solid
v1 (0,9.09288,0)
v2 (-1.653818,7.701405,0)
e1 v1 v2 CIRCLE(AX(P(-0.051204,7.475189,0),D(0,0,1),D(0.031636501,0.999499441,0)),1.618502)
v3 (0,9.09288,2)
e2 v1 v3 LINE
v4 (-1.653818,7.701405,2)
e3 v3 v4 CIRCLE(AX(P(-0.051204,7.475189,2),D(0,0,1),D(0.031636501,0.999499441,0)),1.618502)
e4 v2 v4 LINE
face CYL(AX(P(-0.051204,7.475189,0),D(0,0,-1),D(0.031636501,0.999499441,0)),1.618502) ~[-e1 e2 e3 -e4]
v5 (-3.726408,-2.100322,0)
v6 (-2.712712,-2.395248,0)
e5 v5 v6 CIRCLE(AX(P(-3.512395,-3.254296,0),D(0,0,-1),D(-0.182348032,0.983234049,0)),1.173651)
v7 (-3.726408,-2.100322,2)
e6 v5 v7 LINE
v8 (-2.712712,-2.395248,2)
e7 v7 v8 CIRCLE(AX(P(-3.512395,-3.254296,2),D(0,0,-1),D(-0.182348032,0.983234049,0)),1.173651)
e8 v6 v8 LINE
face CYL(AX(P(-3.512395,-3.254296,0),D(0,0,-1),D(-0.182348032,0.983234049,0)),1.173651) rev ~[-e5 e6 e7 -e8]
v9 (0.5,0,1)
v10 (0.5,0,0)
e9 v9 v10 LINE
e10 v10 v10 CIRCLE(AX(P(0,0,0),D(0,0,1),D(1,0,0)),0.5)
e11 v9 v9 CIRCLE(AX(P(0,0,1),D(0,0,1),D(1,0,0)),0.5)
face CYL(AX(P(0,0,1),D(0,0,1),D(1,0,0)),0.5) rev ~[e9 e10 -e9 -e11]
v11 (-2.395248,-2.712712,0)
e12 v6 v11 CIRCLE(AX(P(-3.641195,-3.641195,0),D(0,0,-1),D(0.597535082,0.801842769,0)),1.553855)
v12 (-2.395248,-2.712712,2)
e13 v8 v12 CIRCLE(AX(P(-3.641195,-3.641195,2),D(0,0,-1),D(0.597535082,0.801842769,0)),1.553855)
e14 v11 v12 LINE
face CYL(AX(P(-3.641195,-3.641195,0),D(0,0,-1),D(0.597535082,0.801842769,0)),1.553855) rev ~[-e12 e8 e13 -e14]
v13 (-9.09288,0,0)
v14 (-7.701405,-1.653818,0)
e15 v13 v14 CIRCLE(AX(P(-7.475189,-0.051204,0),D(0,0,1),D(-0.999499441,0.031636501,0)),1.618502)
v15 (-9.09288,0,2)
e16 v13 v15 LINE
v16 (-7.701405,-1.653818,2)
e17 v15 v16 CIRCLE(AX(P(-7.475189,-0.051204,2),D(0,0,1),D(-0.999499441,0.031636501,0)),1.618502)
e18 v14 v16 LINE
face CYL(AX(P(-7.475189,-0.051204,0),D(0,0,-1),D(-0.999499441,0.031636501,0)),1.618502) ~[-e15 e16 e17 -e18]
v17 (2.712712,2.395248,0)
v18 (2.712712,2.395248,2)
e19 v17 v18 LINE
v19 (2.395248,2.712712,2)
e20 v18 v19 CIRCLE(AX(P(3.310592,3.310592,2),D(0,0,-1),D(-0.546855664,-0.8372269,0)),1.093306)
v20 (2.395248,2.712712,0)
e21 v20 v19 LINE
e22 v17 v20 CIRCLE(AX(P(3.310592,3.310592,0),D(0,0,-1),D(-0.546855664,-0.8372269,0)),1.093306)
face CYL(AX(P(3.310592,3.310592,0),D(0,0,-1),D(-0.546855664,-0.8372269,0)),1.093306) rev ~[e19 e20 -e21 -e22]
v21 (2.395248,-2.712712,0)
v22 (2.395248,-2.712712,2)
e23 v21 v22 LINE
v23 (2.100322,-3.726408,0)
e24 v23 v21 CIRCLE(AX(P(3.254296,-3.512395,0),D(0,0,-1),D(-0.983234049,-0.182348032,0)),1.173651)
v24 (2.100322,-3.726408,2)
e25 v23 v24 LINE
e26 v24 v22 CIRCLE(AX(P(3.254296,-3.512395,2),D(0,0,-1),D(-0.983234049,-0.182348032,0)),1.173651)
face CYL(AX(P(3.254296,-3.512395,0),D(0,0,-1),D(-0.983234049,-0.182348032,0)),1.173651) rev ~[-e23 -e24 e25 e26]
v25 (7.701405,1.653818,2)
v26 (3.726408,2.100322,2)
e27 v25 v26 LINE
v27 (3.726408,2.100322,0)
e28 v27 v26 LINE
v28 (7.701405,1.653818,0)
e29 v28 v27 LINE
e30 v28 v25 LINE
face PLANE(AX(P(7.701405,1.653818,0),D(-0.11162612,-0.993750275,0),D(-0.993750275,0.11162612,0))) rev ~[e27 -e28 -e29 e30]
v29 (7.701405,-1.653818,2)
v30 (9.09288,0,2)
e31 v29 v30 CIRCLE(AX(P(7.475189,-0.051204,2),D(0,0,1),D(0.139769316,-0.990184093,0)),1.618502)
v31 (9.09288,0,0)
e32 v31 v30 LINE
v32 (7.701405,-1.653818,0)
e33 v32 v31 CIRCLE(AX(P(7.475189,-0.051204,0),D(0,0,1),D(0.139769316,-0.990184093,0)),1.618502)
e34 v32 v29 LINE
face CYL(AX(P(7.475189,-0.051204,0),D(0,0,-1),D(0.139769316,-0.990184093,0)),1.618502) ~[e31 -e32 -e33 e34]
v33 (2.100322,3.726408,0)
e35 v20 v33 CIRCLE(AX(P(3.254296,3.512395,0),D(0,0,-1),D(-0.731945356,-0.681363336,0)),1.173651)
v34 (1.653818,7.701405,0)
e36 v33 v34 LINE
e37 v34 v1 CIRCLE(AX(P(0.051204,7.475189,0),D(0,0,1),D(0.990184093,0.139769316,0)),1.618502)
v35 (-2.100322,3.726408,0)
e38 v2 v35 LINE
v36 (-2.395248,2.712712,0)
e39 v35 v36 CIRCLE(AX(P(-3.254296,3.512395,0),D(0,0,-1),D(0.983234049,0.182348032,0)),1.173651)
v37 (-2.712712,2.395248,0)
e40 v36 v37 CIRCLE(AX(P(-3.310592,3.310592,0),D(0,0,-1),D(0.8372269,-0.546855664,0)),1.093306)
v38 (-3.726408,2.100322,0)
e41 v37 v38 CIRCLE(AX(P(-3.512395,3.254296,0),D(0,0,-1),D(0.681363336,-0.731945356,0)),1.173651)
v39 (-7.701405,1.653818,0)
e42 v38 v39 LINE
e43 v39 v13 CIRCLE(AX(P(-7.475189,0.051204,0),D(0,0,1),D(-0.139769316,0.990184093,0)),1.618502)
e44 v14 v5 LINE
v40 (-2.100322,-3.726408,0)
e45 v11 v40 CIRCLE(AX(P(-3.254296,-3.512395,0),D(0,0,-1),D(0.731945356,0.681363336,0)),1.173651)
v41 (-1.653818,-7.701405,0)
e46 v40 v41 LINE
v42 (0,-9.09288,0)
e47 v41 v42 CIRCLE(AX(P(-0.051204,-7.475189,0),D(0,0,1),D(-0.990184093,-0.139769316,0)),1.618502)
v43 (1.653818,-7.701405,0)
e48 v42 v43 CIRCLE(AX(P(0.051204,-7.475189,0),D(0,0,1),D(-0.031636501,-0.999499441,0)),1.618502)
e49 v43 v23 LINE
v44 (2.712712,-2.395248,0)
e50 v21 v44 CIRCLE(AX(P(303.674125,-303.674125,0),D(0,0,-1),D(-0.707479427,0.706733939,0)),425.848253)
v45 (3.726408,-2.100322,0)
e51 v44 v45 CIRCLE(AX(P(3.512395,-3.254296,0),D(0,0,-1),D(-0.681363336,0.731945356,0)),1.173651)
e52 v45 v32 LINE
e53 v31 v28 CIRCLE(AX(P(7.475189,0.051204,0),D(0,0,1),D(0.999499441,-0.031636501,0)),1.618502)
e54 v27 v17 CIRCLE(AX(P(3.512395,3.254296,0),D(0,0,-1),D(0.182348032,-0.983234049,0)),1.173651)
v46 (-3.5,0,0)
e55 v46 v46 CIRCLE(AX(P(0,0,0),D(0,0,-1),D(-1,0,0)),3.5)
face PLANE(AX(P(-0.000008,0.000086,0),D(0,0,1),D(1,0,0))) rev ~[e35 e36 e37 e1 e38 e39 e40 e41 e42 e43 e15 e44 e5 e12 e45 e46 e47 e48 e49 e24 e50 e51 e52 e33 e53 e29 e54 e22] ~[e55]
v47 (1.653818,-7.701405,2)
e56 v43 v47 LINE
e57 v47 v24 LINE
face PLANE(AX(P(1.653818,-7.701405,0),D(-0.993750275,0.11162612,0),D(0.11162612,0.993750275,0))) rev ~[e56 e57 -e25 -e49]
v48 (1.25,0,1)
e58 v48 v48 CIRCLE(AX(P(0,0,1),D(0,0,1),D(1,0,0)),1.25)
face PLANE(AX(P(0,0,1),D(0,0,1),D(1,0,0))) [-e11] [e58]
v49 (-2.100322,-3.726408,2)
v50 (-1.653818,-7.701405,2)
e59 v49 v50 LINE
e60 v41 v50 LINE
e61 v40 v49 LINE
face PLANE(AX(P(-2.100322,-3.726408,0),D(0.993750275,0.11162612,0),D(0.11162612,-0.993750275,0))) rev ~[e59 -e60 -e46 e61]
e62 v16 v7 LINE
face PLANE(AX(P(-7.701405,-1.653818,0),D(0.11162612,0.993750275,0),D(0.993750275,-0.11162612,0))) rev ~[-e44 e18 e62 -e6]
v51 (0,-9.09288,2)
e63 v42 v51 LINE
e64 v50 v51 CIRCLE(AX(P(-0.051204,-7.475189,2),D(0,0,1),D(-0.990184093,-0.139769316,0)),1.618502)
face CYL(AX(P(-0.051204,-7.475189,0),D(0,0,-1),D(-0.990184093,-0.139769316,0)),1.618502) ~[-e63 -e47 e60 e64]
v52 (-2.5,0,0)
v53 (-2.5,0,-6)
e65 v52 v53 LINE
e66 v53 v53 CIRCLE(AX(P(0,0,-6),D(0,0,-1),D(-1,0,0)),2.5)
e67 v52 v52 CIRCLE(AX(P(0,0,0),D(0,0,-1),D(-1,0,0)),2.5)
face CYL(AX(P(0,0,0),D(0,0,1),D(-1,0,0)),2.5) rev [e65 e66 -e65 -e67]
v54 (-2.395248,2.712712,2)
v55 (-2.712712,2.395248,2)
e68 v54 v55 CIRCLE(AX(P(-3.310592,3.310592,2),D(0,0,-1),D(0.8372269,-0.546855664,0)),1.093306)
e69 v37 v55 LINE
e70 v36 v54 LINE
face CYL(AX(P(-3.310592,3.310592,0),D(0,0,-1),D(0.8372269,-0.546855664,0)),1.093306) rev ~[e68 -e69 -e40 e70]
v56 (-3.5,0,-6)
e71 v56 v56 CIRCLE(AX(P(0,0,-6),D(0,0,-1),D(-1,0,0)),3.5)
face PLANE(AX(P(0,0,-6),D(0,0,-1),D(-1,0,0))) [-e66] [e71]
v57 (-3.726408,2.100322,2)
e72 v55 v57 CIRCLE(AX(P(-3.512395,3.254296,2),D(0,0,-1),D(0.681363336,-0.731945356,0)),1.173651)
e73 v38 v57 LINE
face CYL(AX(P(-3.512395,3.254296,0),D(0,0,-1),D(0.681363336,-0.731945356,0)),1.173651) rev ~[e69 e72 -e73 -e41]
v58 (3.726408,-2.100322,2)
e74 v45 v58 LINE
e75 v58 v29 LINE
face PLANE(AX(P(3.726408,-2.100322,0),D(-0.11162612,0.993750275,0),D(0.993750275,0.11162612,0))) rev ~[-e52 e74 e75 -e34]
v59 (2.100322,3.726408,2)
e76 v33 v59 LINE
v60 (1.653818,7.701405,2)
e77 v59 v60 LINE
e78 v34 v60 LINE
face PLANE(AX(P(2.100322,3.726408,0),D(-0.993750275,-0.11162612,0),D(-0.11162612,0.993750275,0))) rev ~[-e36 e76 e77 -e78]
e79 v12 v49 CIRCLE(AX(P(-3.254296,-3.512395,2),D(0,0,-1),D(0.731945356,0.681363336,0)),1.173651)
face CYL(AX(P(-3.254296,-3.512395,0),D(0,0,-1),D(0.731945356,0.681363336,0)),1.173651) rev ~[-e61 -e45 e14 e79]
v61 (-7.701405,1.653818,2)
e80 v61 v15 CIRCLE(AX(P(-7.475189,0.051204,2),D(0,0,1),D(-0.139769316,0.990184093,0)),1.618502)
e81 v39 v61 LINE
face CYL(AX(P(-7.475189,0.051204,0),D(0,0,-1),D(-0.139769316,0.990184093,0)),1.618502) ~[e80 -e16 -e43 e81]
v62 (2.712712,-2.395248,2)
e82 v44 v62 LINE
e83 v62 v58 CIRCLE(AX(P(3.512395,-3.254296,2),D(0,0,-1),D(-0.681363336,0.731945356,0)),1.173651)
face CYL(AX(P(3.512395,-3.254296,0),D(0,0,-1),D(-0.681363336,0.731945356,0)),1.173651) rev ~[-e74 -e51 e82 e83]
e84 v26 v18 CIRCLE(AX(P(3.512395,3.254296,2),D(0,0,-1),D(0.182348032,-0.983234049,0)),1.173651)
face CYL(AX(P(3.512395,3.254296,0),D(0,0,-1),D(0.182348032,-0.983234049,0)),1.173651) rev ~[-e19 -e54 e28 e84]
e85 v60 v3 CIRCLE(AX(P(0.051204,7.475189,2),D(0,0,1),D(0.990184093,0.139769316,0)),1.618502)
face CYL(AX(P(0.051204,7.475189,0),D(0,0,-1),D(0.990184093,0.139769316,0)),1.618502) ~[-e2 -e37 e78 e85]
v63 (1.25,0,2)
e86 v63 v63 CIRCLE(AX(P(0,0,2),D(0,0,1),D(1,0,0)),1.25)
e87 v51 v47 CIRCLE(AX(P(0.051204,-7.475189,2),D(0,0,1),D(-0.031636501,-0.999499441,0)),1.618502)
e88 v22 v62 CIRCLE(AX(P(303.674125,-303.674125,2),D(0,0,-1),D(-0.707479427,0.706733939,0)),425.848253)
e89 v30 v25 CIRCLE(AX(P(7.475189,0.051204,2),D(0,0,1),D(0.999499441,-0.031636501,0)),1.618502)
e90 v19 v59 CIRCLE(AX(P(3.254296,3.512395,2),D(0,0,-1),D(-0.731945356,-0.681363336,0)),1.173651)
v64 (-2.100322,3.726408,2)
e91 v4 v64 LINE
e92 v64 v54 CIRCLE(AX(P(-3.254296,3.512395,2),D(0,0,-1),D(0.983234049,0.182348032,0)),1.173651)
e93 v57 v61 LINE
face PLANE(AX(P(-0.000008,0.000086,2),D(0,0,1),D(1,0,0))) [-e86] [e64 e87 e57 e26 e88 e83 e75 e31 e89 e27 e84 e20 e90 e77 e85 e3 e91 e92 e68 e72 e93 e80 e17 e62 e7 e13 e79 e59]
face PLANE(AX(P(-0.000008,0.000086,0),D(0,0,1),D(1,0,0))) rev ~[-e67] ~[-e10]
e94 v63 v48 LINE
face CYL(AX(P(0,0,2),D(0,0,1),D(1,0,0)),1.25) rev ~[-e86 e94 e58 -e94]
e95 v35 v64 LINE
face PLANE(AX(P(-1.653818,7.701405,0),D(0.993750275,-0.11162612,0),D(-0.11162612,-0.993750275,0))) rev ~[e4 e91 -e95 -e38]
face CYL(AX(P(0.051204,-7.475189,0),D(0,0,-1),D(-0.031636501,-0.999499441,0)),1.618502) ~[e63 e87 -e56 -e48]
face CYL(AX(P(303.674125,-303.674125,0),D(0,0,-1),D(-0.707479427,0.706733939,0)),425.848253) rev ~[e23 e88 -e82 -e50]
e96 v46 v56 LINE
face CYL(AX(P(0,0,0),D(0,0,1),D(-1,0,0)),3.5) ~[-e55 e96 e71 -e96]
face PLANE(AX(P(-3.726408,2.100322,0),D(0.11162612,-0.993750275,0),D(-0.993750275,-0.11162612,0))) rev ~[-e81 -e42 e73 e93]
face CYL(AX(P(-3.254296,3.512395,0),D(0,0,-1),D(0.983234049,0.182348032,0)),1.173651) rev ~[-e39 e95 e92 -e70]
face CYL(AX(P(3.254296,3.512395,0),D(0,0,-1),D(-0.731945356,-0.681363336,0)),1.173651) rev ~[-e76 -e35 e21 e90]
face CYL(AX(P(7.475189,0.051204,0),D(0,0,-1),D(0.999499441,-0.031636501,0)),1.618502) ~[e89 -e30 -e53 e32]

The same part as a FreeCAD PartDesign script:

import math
import FreeCAD as App
import Part
import Sketcher

V = App.Vector
Q = App.Units.Quantity

doc = App.newDocument("Part")
body = doc.addObject("PartDesign::Body", "Body")

# Sketch on XY plane
sketch1 = doc.addObject("Sketcher::SketchObject", "Sketch")
body.addObject(sketch1)
sketch1.AttachmentSupport = (doc.XY_Plane, [""])
sketch1.MapMode = "FlatFace"
sketch1.addGeometry(Part.LineSegment(V(1.65, -7.7, 0), V(2.1, -3.73, 0)), False)
sketch1.addGeometry(Part.ArcOfCircle(Part.Circle(V(3.25, -3.51, 0), V(0, 0, 1), 1.17), math.radians(137), math.radians(191)), False)
sketch1.addGeometry(Part.ArcOfCircle(Part.Circle(V(303.67, -303.67, 0), V(0, 0, 1), 425.85), math.radians(134.97), math.radians(135.03)), False)
sketch1.addGeometry(Part.ArcOfCircle(Part.Circle(V(3.51, -3.25, 0), V(0, 0, 1), 1.17), math.radians(79), math.radians(133)), False)
sketch1.addGeometry(Part.LineSegment(V(3.73, -2.1, 0), V(7.7, -1.65, 0)), False)
sketch1.addGeometry(Part.ArcOfCircle(Part.Circle(V(7.48, -0.05, 0), V(0, 0, 1), 1.62), math.radians(-82), math.radians(2)), False)
sketch1.addGeometry(Part.ArcOfCircle(Part.Circle(V(7.48, 0.05, 0), V(0, 0, 1), 1.62), math.radians(-2), math.radians(82)), False)
sketch1.addGeometry(Part.LineSegment(V(7.7, 1.65, 0), V(3.73, 2.1, 0)), False)
sketch1.addGeometry(Part.ArcOfCircle(Part.Circle(V(3.51, 3.25, 0), V(0, 0, 1), 1.17), math.radians(-133), math.radians(-79)), False)
sketch1.addGeometry(Part.ArcOfCircle(Part.Circle(V(3.31, 3.31, 0), V(0, 0, 1), 1.09), math.radians(-147), math.radians(-123)), False)
sketch1.addGeometry(Part.ArcOfCircle(Part.Circle(V(3.25, 3.51, 0), V(0, 0, 1), 1.17), math.radians(169), math.radians(223)), False)
sketch1.addGeometry(Part.LineSegment(V(2.1, 3.73, 0), V(1.65, 7.7, 0)), False)
sketch1.addGeometry(Part.ArcOfCircle(Part.Circle(V(0.05, 7.48, 0), V(0, 0, 1), 1.62), math.radians(8), math.radians(92)), False)
sketch1.addGeometry(Part.ArcOfCircle(Part.Circle(V(-0.05, 7.48, 0), V(0, 0, 1), 1.62), math.radians(88), math.radians(172)), False)
sketch1.addGeometry(Part.LineSegment(V(-1.65, 7.7, 0), V(-2.1, 3.73, 0)), False)
sketch1.addGeometry(Part.ArcOfCircle(Part.Circle(V(-3.25, 3.51, 0), V(0, 0, 1), 1.17), math.radians(-43), math.radians(11)), False)
sketch1.addGeometry(Part.ArcOfCircle(Part.Circle(V(-3.31, 3.31, 0), V(0, 0, 1), 1.09), math.radians(-57), math.radians(-33)), False)
sketch1.addGeometry(Part.ArcOfCircle(Part.Circle(V(-3.51, 3.25, 0), V(0, 0, 1), 1.17), math.radians(-101), math.radians(-47)), False)
sketch1.addGeometry(Part.LineSegment(V(-3.73, 2.1, 0), V(-7.7, 1.65, 0)), False)
sketch1.addGeometry(Part.ArcOfCircle(Part.Circle(V(-7.48, 0.05, 0), V(0, 0, 1), 1.62), math.radians(98), math.radians(182)), False)
sketch1.addGeometry(Part.ArcOfCircle(Part.Circle(V(-7.48, -0.05, 0), V(0, 0, 1), 1.62), math.radians(178), math.radians(262)), False)
sketch1.addGeometry(Part.LineSegment(V(-7.7, -1.65, 0), V(-3.73, -2.1, 0)), False)
sketch1.addGeometry(Part.ArcOfCircle(Part.Circle(V(-3.51, -3.25, 0), V(0, 0, 1), 1.17), math.radians(47), math.radians(101)), False)
sketch1.addGeometry(Part.ArcOfCircle(Part.Circle(V(-3.64, -3.64, 0), V(0, 0, 1), 1.55), math.radians(36.69), math.radians(53.31)), False)
sketch1.addGeometry(Part.ArcOfCircle(Part.Circle(V(-3.25, -3.51, 0), V(0, 0, 1), 1.17), math.radians(-11), math.radians(43)), False)
sketch1.addGeometry(Part.LineSegment(V(-2.1, -3.73, 0), V(-1.65, -7.7, 0)), False)
sketch1.addGeometry(Part.ArcOfCircle(Part.Circle(V(-0.05, -7.48, 0), V(0, 0, 1), 1.62), math.radians(-172), math.radians(-88)), False)
sketch1.addGeometry(Part.ArcOfCircle(Part.Circle(V(0.05, -7.48, 0), V(0, 0, 1), 1.62), math.radians(-92), math.radians(-8)), False)
sketch1.addConstraint(Sketcher.Constraint("Coincident", 0, 2, 1, 2))
sketch1.addConstraint(Sketcher.Constraint("Coincident", 1, 1, 2, 2))
sketch1.addConstraint(Sketcher.Constraint("Coincident", 2, 1, 3, 2))
sketch1.addConstraint(Sketcher.Constraint("Coincident", 3, 1, 4, 1))
sketch1.addConstraint(Sketcher.Constraint("Coincident", 4, 2, 5, 1))
sketch1.addConstraint(Sketcher.Constraint("Coincident", 5, 2, 6, 1))
sketch1.addConstraint(Sketcher.Constraint("Coincident", 6, 2, 7, 1))
sketch1.addConstraint(Sketcher.Constraint("Coincident", 7, 2, 8, 2))
sketch1.addConstraint(Sketcher.Constraint("Coincident", 8, 1, 9, 2))
sketch1.addConstraint(Sketcher.Constraint("Coincident", 9, 1, 10, 2))
sketch1.addConstraint(Sketcher.Constraint("Coincident", 10, 1, 11, 1))
sketch1.addConstraint(Sketcher.Constraint("Coincident", 11, 2, 12, 1))
sketch1.addConstraint(Sketcher.Constraint("Coincident", 12, 2, 13, 1))
sketch1.addConstraint(Sketcher.Constraint("Coincident", 13, 2, 14, 1))
sketch1.addConstraint(Sketcher.Constraint("Coincident", 14, 2, 15, 2))
sketch1.addConstraint(Sketcher.Constraint("Coincident", 15, 1, 16, 2))
sketch1.addConstraint(Sketcher.Constraint("Coincident", 16, 1, 17, 2))
sketch1.addConstraint(Sketcher.Constraint("Coincident", 17, 1, 18, 1))
sketch1.addConstraint(Sketcher.Constraint("Coincident", 18, 2, 19, 1))
sketch1.addConstraint(Sketcher.Constraint("Coincident", 19, 2, 20, 1))
sketch1.addConstraint(Sketcher.Constraint("Coincident", 20, 2, 21, 1))
sketch1.addConstraint(Sketcher.Constraint("Coincident", 21, 2, 22, 2))
sketch1.addConstraint(Sketcher.Constraint("Coincident", 22, 1, 23, 2))
sketch1.addConstraint(Sketcher.Constraint("Coincident", 23, 1, 24, 2))
sketch1.addConstraint(Sketcher.Constraint("Coincident", 24, 1, 25, 1))
sketch1.addConstraint(Sketcher.Constraint("Coincident", 25, 2, 26, 1))
sketch1.addConstraint(Sketcher.Constraint("Coincident", 26, 2, 27, 1))
sketch1.addConstraint(Sketcher.Constraint("Coincident", 27, 2, 0, 1))
sketch1.addConstraint(Sketcher.Constraint("Equal", 1, 3))
sketch1.addConstraint(Sketcher.Constraint("Equal", 5, 6))
sketch1.addConstraint(Sketcher.Constraint("Equal", 3, 8))
sketch1.addConstraint(Sketcher.Constraint("Equal", 8, 10))
sketch1.addConstraint(Sketcher.Constraint("Equal", 6, 12))
sketch1.addConstraint(Sketcher.Constraint("Equal", 12, 13))
sketch1.addConstraint(Sketcher.Constraint("Equal", 10, 15))
sketch1.addConstraint(Sketcher.Constraint("Equal", 9, 16))
sketch1.addConstraint(Sketcher.Constraint("Equal", 15, 17))
sketch1.addConstraint(Sketcher.Constraint("Equal", 13, 19))
sketch1.addConstraint(Sketcher.Constraint("Equal", 19, 20))
sketch1.addConstraint(Sketcher.Constraint("Equal", 17, 22))
sketch1.addConstraint(Sketcher.Constraint("Equal", 22, 24))
sketch1.addConstraint(Sketcher.Constraint("Equal", 20, 26))
sketch1.addConstraint(Sketcher.Constraint("Equal", 26, 27))
sketch1.addConstraint(Sketcher.Constraint("Symmetric", 1, 3, 15, 3, -1, 1))
sketch1.addConstraint(Sketcher.Constraint("Symmetric", 3, 3, 17, 3, -1, 1))
sketch1.addConstraint(Sketcher.Constraint("Symmetric", 5, 3, 19, 3, -1, 1))
sketch1.addConstraint(Sketcher.Constraint("Symmetric", 6, 3, 20, 3, -1, 1))
sketch1.addConstraint(Sketcher.Constraint("Symmetric", 8, 3, 22, 3, -1, 1))
sketch1.addConstraint(Sketcher.Constraint("Symmetric", 10, 3, 24, 3, -1, 1))
sketch1.addConstraint(Sketcher.Constraint("Symmetric", 12, 3, 26, 3, -1, 1))
sketch1.addConstraint(Sketcher.Constraint("Symmetric", 13, 3, 27, 3, -1, 1))
sketch1.addConstraint(Sketcher.Constraint("Symmetric", 12, 3, 13, 3, -2))
sketch1.addConstraint(Sketcher.Constraint("Symmetric", 10, 3, 15, 3, -2))
sketch1.addConstraint(Sketcher.Constraint("Symmetric", 9, 3, 16, 3, -2))
sketch1.addConstraint(Sketcher.Constraint("Symmetric", 8, 3, 17, 3, -2))
sketch1.addConstraint(Sketcher.Constraint("Symmetric", 6, 3, 19, 3, -2))
sketch1.addConstraint(Sketcher.Constraint("Perpendicular", 0, 7))
sketch1.addConstraint(Sketcher.Constraint("Perpendicular", 4, 11))
sketch1.addConstraint(Sketcher.Constraint("Perpendicular", 7, 14))
sketch1.addConstraint(Sketcher.Constraint("Perpendicular", 11, 18))
sketch1.addConstraint(Sketcher.Constraint("Perpendicular", 14, 21))
sketch1.addConstraint(Sketcher.Constraint("Perpendicular", 18, 25))
sketch1.addConstraint(Sketcher.Constraint("Horizontal", 11, 2, 13, 2))
sketch1.addConstraint(Sketcher.Constraint("Horizontal", 10, 1, 14, 2))
sketch1.addConstraint(Sketcher.Constraint("Horizontal", 7, 2, 17, 1))
sketch1.addConstraint(Sketcher.Constraint("Horizontal", 4, 2, 20, 2))
sketch1.addConstraint(Sketcher.Constraint("Horizontal", 2, 1, 22, 1))
sketch1.addConstraint(Sketcher.Constraint("Horizontal", 1, 1, 23, 1))
sketch1.addConstraint(Sketcher.Constraint("Horizontal", 0, 2, 24, 1))
sketch1.addConstraint(Sketcher.Constraint("Vertical", 4, 2, 6, 2))
sketch1.addConstraint(Sketcher.Constraint("Vertical", 2, 1, 8, 1))
sketch1.addConstraint(Sketcher.Constraint("Vertical", 1, 1, 9, 1))
sketch1.addConstraint(Sketcher.Constraint("Vertical", 0, 2, 10, 1))
sketch1.addConstraint(Sketcher.Constraint("Equal", 0, 4))
sketch1.addConstraint(Sketcher.Constraint("Radius", 5, Q("1.618502 mm")))
sketch1.addConstraint(Sketcher.Constraint("Radius", 1, Q("1.173651 mm")))
sketch1.addConstraint(Sketcher.Constraint("Radius", 2, Q("425.848253 mm")))
sketch1.addConstraint(Sketcher.Constraint("Radius", 9, Q("1.093306 mm")))
sketch1.addConstraint(Sketcher.Constraint("Radius", 23, Q("1.553855 mm")))
sketch1.addConstraint(Sketcher.Constraint("DistanceX", 1, 3, 3, 3, Q("0.258099 mm")))
sketch1.addConstraint(Sketcher.Constraint("DistanceY", 1, 3, 3, 3, Q("0.258099 mm")))
sketch1.addConstraint(Sketcher.Constraint("DistanceY", 3, 3, 6, 3, Q("3.3055 mm")))
sketch1.addConstraint(Sketcher.Constraint("DistanceX", 13, 3, 10, 3, Q("3.3055 mm")))
sketch1.addConstraint(Sketcher.Constraint("DistanceX", 23, 3, 22, 3, Q("0.1288 mm")))
sketch1.addConstraint(Sketcher.Constraint("DistanceY", 23, 3, 22, 3, Q("0.386899 mm")))
sketch1.addConstraint(Sketcher.Constraint("DistanceX", -1, 1, 5, 3, Q("7.475189 mm")))
sketch1.addConstraint(Sketcher.Constraint("DistanceY", -1, 1, 12, 3, Q("7.475189 mm")))
sketch1.addConstraint(Sketcher.Constraint("DistanceY", 0, 2, -1, 1, Q("3.726408 mm")))
sketch1.addConstraint(Sketcher.Constraint("DistanceX", -1, 1, 3, 1, Q("3.726408 mm")))
sketch1.addConstraint(Sketcher.Constraint("DistanceY", 4, 2, -1, 1, Q("1.653818 mm")))
sketch1.addConstraint(Sketcher.Constraint("DistanceY", 1, 3, 5, 3, Q("3.461191 mm")))
pad1 = doc.addObject("PartDesign::Pad", "Pad")
body.addObject(pad1)
pad1.Profile = sketch1
pad1.Length = 2

# Sketch on XY plane
sketch2 = doc.addObject("Sketcher::SketchObject", "Sketch001")
body.addObject(sketch2)
sketch2.AttachmentSupport = (doc.XY_Plane, [""])
sketch2.MapMode = "FlatFace"
sketch2.addGeometry(Part.Circle(V(0, 0, 0), V(0, 0, 1), 3.5), False)
sketch2.addGeometry(Part.Circle(V(0, 0, 0), V(0, 0, 1), 2.5), False)
sketch2.addConstraint(Sketcher.Constraint("Coincident", 0, 3, -1, 1))
sketch2.addConstraint(Sketcher.Constraint("Coincident", 1, 3, -1, 1))
sketch2.addConstraint(Sketcher.Constraint("Diameter", 0, Q("7 mm")))
sketch2.addConstraint(Sketcher.Constraint("Diameter", 1, Q("5 mm")))
pad2 = doc.addObject("PartDesign::Pad", "Pad001")
body.addObject(pad2)
pad2.Profile = sketch2
pad2.Length = 6
pad2.Reversed = True

# Sketch on XY plane
sketch3 = doc.addObject("Sketcher::SketchObject", "Sketch002")
body.addObject(sketch3)
sketch3.AttachmentSupport = (doc.XY_Plane, [""])
sketch3.MapMode = "FlatFace"
sketch3.AttachmentOffset = App.Placement(V(0, 0, 2), App.Rotation())
sketch3.addGeometry(Part.Circle(V(0, 0, 0), V(0, 0, 1), 1.2), False)
sketch3.addConstraint(Sketcher.Constraint("Coincident", 0, 3, -1, 1))
sketch3.addConstraint(Sketcher.Constraint("Diameter", 0, Q("2.5 mm")))
pocket1 = doc.addObject("PartDesign::Pocket", "Pocket")
body.addObject(pocket1)
pocket1.Profile = sketch3
pocket1.Length = 1

# Sketch on XY plane
sketch4 = doc.addObject("Sketcher::SketchObject", "Sketch003")
body.addObject(sketch4)
sketch4.AttachmentSupport = (doc.XY_Plane, [""])
sketch4.MapMode = "FlatFace"
sketch4.AttachmentOffset = App.Placement(V(0, 0, 1), App.Rotation())
sketch4.addGeometry(Part.Circle(V(0, 0, 0), V(0, 0, 1), 0.5), False)
sketch4.addConstraint(Sketcher.Constraint("Coincident", 0, 3, -1, 1))
sketch4.addConstraint(Sketcher.Constraint("Diameter", 0, Q("1 mm")))
pocket2 = doc.addObject("PartDesign::Pocket", "Pocket001")
body.addObject(pocket2)
pocket2.Profile = sketch4
pocket2.Length = 1

doc.recompute()
